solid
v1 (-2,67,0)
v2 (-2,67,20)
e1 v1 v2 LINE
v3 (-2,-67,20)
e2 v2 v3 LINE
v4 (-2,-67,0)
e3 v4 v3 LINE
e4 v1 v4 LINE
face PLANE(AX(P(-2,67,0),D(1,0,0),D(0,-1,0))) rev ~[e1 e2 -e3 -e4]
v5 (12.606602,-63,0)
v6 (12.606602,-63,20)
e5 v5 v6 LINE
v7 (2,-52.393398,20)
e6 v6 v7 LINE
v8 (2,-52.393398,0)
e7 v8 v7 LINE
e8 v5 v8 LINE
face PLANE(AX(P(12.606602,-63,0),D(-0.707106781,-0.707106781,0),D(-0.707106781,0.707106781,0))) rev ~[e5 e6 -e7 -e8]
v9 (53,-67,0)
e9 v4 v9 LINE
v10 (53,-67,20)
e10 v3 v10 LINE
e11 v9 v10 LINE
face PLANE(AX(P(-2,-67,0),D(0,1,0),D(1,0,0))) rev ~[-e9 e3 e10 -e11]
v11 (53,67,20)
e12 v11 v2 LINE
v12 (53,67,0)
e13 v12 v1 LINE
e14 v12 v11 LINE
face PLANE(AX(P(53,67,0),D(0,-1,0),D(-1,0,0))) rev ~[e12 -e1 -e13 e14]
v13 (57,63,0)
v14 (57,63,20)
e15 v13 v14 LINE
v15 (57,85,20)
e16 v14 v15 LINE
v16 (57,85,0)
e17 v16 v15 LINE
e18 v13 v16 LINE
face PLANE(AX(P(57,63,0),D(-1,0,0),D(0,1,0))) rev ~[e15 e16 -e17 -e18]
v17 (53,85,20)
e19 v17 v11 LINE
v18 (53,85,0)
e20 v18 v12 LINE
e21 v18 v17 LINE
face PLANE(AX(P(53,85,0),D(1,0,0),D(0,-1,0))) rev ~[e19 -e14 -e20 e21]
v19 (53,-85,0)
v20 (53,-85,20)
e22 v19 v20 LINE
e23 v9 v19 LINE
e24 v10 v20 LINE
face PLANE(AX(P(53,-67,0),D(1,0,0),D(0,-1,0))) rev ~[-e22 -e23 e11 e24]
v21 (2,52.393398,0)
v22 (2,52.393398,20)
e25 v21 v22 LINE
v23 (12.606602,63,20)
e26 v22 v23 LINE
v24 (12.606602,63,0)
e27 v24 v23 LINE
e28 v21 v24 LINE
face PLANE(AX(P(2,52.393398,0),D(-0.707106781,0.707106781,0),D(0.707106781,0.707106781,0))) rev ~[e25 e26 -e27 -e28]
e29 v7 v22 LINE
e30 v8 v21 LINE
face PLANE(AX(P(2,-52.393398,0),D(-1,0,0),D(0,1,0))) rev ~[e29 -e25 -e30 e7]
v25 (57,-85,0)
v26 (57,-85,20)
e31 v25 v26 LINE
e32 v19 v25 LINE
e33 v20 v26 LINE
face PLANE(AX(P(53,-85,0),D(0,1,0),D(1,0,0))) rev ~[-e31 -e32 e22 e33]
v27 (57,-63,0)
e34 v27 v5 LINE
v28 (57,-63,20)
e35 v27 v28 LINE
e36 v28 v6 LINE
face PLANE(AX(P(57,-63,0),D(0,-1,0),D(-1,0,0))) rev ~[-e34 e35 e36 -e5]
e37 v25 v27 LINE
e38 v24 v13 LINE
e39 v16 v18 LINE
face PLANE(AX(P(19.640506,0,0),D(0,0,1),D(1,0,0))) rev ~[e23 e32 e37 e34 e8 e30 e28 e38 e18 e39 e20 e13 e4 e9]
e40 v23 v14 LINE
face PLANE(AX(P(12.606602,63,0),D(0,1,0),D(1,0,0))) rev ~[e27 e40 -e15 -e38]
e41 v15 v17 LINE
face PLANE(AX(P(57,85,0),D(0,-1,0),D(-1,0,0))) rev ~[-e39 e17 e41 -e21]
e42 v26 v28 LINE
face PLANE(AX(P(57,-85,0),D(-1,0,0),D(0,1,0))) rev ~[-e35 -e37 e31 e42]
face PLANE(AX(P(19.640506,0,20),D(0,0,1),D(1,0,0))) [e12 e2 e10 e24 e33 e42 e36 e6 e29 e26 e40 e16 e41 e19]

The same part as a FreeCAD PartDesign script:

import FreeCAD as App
import Part
import Sketcher

V = App.Vector
Q = App.Units.Quantity


def add_polygon(sketch, points):
    """Adds a closed chain of lines whose ends are joined by coincident constraints."""
    first, n = sketch.GeometryCount, len(points)
    for a, b in zip(points, points[1:] + points[:1]):
        sketch.addGeometry(Part.LineSegment(App.Vector(*a, 0), App.Vector(*b, 0)), False)
    for i in range(n):
        sketch.addConstraint(Sketcher.Constraint("Coincident", first + i, 2, first + (i + 1) % n, 1))

doc = App.newDocument("Part")
body = doc.addObject("PartDesign::Body", "Body")

# Sketch on XY plane
sketch1 = body.newObject("Sketcher::SketchObject", "Sketch")
sketch1.AttachmentSupport = (doc.getObject("XY_Plane"), [""])
sketch1.MapMode = "FlatFace"
add_polygon(sketch1, [(53, 85), (53, 67), (-2, 67), (-2, -67), (53, -67), (53, -85), (57, -85), (57, -63), (12.6, -63), (2, -52.4), (2, 52.4), (12.6, 63), (57, 63), (57, 85)])  # lines 0-13
sketch1.addConstraint([
    Sketcher.Constraint("Vertical", 0),
    Sketcher.Constraint("Horizontal", 1),
    Sketcher.Constraint("Vertical", 2),
    Sketcher.Constraint("Horizontal", 3),
    Sketcher.Constraint("Vertical", 4),
    Sketcher.Constraint("Horizontal", 5),
    Sketcher.Constraint("Vertical", 6),
    Sketcher.Constraint("Horizontal", 7),
    Sketcher.Constraint("Vertical", 9),
    Sketcher.Constraint("Horizontal", 11),
    Sketcher.Constraint("Vertical", 12),
    Sketcher.Constraint("Horizontal", 13),
    Sketcher.Constraint("Symmetric", 0, 2, 3, 2, -1),
    Sketcher.Constraint("Symmetric", 7, 2, 10, 2, -1),
    Sketcher.Constraint("Symmetric", 5, 2, 12, 2, -1),
    Sketcher.Constraint("Perpendicular", 8, 10),
    Sketcher.Constraint("Equal", 8, 10),
    Sketcher.Constraint("DistanceX", 1, 2, 1, 1, Q("55 mm")),
    Sketcher.Constraint("DistanceX", 5, 1, 5, 2, Q("4 mm")),
    Sketcher.Constraint("DistanceY", 0, 2, 0, 1, Q("18 mm")),
    Sketcher.Constraint("DistanceY", 2, 2, 2, 1, Q("134 mm")),
    Sketcher.Constraint("DistanceY", 6, 1, 6, 2, Q("22 mm")),
    Sketcher.Constraint("Distance", 8, Q("15 mm")),
    Sketcher.Constraint("DistanceX", -1, 1, 0, 2, Q("53 mm")),
    Sketcher.Constraint("DistanceX", -1, 1, 8, 2, Q("2 mm")),
])
pad1 = body.newObject("PartDesign::Pad", "Pad")
pad1.Profile = sketch1
pad1.Length = 20

doc.recompute()
